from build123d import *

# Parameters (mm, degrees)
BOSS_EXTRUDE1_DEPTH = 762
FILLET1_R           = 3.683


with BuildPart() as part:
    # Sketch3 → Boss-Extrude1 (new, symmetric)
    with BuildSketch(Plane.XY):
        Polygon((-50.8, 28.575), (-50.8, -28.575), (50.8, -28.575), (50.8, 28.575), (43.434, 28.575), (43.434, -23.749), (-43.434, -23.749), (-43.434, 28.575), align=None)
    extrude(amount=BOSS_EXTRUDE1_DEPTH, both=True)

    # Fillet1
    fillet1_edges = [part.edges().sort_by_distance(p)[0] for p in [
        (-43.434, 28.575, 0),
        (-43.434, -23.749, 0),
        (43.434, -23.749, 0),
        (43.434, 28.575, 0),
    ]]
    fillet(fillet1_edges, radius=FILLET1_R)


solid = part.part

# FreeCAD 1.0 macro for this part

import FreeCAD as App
import Part
import Sketcher

V = App.Vector
Q = App.Units.Quantity


def edges_at(feature, points):
    """Names of the edges that pass closest to the given points."""
    edges = feature.Shape.Edges
    near = lambda p: min(range(len(edges)), key=lambda i: edges[i].distToShape(Part.Vertex(*p))[0])
    return sorted({f"Edge{near(p) + 1}" for p in points})


def add_polygon(sketch, points):
    """Adds a closed chain of lines whose ends are joined by coincident constraints."""
    first, n = sketch.GeometryCount, len(points)
    for a, b in zip(points, points[1:] + points[:1]):
        sketch.addGeometry(Part.LineSegment(App.Vector(*a, 0), App.Vector(*b, 0)), False)
    for i in range(n):
        sketch.addConstraint(Sketcher.Constraint("Coincident", first + i, 2, first + (i + 1) % n, 1))

doc = App.newDocument("Part")
body = doc.addObject("PartDesign::Body", "Body")

sketch1 = body.newObject("Sketcher::SketchObject", "Sketch")
sketch1.AttachmentSupport = (doc.getObject("XY_Plane"), [""])
sketch1.MapMode = "FlatFace"
add_polygon(sketch1, [(-51, 29), (-51, -29), (51, -29), (51, 29), (43, 29), (43, -24), (-43, -24), (-43, 29)])
sketch1.addConstraint([
    Sketcher.Constraint("Vertical", 0),
    Sketcher.Constraint("Horizontal", 1),
    Sketcher.Constraint("Vertical", 2),
    Sketcher.Constraint("Horizontal", 3),
    Sketcher.Constraint("Vertical", 4),
    Sketcher.Constraint("Horizontal", 5),
    Sketcher.Constraint("Vertical", 6),
    Sketcher.Constraint("Horizontal", 7),
    Sketcher.Constraint("Symmetric", 0, 2, 2, 2, -1, 1),
    Sketcher.Constraint("Symmetric", 3, 2, 6, 2, -2),
    Sketcher.Constraint("DistanceX", 1, 1, 1, 2, Q("4 in")),
    Sketcher.Constraint("DistanceX", 3, 2, 3, 1, Q("0.29 in")),
    Sketcher.Constraint("DistanceY", 0, 2, 0, 1, Q("2.25 in")),
    Sketcher.Constraint("DistanceY", 4, 2, 4, 1, Q("2.06 in")),
])
pad1 = body.newObject("PartDesign::Pad", "Pad")
pad1.Profile = sketch1
pad1.Length = Q("60 in")
pad1.Midplane = True
doc.recompute()

fillet = body.newObject("PartDesign::Fillet", "Fillet")
fillet.Base = (pad1, edges_at(pad1, [
    (-43.434, 28.575, 0),
    (-43.434, -23.749, 0),
    (43.434, -23.749, 0),
    (43.434, 28.575, 0),
]))
fillet.Radius = Q("0.145 in")

doc.recompute()
